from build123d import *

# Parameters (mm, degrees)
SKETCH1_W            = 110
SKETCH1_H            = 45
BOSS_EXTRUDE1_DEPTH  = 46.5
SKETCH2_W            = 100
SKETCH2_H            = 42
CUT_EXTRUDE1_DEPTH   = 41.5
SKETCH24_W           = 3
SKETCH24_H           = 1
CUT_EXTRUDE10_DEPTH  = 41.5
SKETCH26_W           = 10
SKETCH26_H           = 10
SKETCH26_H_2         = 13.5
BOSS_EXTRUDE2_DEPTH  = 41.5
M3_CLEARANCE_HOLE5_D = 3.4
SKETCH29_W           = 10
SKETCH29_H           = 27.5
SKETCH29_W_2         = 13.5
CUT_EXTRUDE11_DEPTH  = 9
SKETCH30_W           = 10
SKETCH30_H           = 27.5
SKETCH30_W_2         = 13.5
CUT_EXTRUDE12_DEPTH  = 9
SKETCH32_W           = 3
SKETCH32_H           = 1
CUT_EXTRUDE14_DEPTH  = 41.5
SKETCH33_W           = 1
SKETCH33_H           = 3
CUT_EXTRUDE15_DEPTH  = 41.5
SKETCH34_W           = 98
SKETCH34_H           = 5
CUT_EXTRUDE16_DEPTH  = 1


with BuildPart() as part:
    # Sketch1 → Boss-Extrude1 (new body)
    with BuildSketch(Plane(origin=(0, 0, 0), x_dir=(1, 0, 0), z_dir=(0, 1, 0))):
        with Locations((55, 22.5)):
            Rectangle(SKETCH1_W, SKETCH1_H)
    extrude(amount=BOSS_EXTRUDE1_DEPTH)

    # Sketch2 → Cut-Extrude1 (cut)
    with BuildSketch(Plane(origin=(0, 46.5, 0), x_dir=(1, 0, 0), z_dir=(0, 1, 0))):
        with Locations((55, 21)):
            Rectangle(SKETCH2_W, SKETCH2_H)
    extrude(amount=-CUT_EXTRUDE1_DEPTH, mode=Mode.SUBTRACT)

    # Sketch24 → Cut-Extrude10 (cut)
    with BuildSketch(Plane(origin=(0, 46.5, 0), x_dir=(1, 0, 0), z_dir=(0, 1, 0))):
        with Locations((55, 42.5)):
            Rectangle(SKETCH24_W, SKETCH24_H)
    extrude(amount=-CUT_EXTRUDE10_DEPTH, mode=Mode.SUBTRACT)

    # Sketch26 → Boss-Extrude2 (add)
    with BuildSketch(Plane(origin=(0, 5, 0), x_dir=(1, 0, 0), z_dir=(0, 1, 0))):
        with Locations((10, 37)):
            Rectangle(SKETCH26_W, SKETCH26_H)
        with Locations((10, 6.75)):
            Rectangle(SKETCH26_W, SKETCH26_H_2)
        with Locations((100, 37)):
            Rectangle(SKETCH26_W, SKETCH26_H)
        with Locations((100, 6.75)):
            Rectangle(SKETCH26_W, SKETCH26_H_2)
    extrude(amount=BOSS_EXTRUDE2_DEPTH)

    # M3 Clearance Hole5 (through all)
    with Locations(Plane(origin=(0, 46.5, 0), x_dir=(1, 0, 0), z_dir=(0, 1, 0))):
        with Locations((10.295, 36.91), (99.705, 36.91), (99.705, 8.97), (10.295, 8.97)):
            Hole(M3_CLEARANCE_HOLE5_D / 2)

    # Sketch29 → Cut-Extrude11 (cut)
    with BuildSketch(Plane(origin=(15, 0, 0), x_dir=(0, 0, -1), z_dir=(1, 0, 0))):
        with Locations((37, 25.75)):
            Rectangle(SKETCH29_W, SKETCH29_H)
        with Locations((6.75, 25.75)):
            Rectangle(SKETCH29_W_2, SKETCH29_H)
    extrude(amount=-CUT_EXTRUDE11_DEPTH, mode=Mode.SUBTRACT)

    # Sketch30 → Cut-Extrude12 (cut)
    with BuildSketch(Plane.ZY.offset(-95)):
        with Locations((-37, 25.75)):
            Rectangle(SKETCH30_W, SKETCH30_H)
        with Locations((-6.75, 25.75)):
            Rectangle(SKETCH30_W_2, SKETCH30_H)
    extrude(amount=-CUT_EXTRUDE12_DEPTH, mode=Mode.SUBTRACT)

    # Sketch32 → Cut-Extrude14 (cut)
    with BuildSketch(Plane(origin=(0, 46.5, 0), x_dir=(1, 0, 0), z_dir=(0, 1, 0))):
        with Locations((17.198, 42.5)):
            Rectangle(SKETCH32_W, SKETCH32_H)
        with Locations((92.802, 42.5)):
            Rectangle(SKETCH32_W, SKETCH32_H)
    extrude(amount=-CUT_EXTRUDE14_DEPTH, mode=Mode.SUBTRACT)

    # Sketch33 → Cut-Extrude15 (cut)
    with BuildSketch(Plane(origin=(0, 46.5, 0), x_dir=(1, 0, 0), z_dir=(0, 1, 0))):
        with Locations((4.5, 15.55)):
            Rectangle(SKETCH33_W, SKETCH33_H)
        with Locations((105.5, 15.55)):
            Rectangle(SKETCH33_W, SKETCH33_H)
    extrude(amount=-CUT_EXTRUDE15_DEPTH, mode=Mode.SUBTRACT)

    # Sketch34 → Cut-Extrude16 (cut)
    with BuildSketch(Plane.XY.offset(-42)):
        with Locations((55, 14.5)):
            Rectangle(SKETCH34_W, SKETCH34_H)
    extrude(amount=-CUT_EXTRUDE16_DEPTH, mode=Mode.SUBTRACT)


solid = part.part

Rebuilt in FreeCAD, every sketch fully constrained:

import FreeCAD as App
import Part
import Sketcher

doc = App.newDocument("Part")
params = doc.addObject("Spreadsheet::Sheet", "Params")
for row, (alias, value) in enumerate([
    ("sketch1_width", "110 mm"),
    ("sketch1_height", "45 mm"),
    ("pad1_length", "46.5 mm"),
    ("sketch2_width", "100 mm"),
    ("sketch2_height", "42 mm"),
    ("pocket1_length", "41.5 mm"),
    ("sketch3_width", "3 mm"),
    ("sketch3_height", "1 mm"),
    ("pocket2_length", "41.5 mm"),
    ("sketch4_width", "10 mm"),
    ("sketch4_height", "13.5 mm"),
    ("pad2_length", "41.5 mm"),
    ("sketch5_diameter", "3.4 mm"),
    ("hole_diameter", "3.4 mm"),
    ("sketch6_height", "10 mm"),
    ("sketch6_width", "27.5 mm"),
    ("sketch6_height2", "13.5 mm"),
    ("pocket3_length", "9 mm"),
    ("sketch7_height", "10 mm"),
    ("sketch7_width", "27.5 mm"),
    ("sketch7_height2", "13.5 mm"),
    ("pocket4_length", "9 mm"),
    ("sketch8_width", "3 mm"),
    ("sketch8_height", "1 mm"),
    ("pocket5_length", "41.5 mm"),
    ("sketch9_width", "1 mm"),
    ("sketch9_height", "3 mm"),
    ("pocket6_length", "41.5 mm"),
    ("sketch10_width", "98 mm"),
    ("sketch10_height", "5 mm"),
    ("pocket7_length", "1 mm"),
], start=1):
    params.set(f"A{row}", alias)
    params.set(f"B{row}", "=" + value)
    params.setAlias(f"B{row}", alias)

body = doc.addObject("PartDesign::Body", "Body")

# Sketch on XZ plane
sketch1 = body.newObject("Sketcher::SketchObject", "Sketch")
sketch1.AttachmentSupport = (doc.getObject("XZ_Plane"), [""])
sketch1.MapMode = "FlatFace"
sketch1.addGeometry([
    Part.LineSegment(App.Vector(0, -45, 0), App.Vector(0, 0, 0)),
    Part.LineSegment(App.Vector(0, 0, 0), App.Vector(110, 0, 0)),
    Part.LineSegment(App.Vector(110, 0, 0), App.Vector(110, -45, 0)),
    Part.LineSegment(App.Vector(110, -45, 0), App.Vector(0, -45, 0)),
], False)
sketch1.addConstraint([
    Sketcher.Constraint("Coincident", 0, 2, 1, 1),
    Sketcher.Constraint("Coincident", 1, 2, 2, 1),
    Sketcher.Constraint("Coincident", 2, 2, 3, 1),
    Sketcher.Constraint("Coincident", 3, 2, 0, 1),
    Sketcher.Constraint("Vertical", 0),
    Sketcher.Constraint("Horizontal", 1),
    Sketcher.Constraint("Vertical", 2),
    Sketcher.Constraint("Horizontal", 3),
    Sketcher.Constraint("Coincident", 0, 2, -1, 1),
    Sketcher.Constraint("DistanceX", 1, 1, 1, 2, 110.0),
    Sketcher.Constraint("DistanceY", 0, 1, 0, 2, 45.0),
])
sketch1.setExpression("Constraints[9]", "Params.sketch1_width")
sketch1.setExpression("Constraints[10]", "Params.sketch1_height")
pad1 = body.newObject("PartDesign::Pad", "Pad")
pad1.Profile = sketch1
pad1.setExpression("Length", "Params.pad1_length")
pad1.Reversed = True

# Sketch on XZ plane
sketch2 = body.newObject("Sketcher::SketchObject", "Sketch001")
sketch2.AttachmentSupport = (doc.getObject("XZ_Plane"), [""])
sketch2.MapMode = "FlatFace"
sketch2.AttachmentOffset = App.Placement(App.Vector(0, 0, -46.5), App.Rotation())
sketch2.addGeometry([
    Part.LineSegment(App.Vector(5, -42, 0), App.Vector(5, 0, 0)),
    Part.LineSegment(App.Vector(5, 0, 0), App.Vector(105, 0, 0)),
    Part.LineSegment(App.Vector(105, 0, 0), App.Vector(105, -42, 0)),
    Part.LineSegment(App.Vector(105, -42, 0), App.Vector(5, -42, 0)),
], False)
sketch2.addConstraint([
    Sketcher.Constraint("Coincident", 0, 2, 1, 1),
    Sketcher.Constraint("Coincident", 1, 2, 2, 1),
    Sketcher.Constraint("Coincident", 2, 2, 3, 1),
    Sketcher.Constraint("Coincident", 3, 2, 0, 1),
    Sketcher.Constraint("Vertical", 0),
    Sketcher.Constraint("Horizontal", 1),
    Sketcher.Constraint("Vertical", 2),
    Sketcher.Constraint("Horizontal", 3),
    Sketcher.Constraint("PointOnObject", 0, 2, -1),
    Sketcher.Constraint("DistanceX", 1, 1, 1, 2, 100.0),
    Sketcher.Constraint("DistanceY", 0, 1, 0, 2, 42.0),
    Sketcher.Constraint("DistanceX", -1, 1, 0, 2, 5.0),
])
sketch2.setExpression("Constraints[9]", "Params.sketch2_width")
sketch2.setExpression("Constraints[10]", "Params.sketch2_height")
pocket1 = body.newObject("PartDesign::Pocket", "Pocket")
pocket1.Profile = sketch2
pocket1.setExpression("Length", "Params.pocket1_length")
pocket1.Reversed = True

# Sketch on XZ plane
sketch3 = body.newObject("Sketcher::SketchObject", "Sketch002")
sketch3.AttachmentSupport = (doc.getObject("XZ_Plane"), [""])
sketch3.MapMode = "FlatFace"
sketch3.AttachmentOffset = App.Placement(App.Vector(0, 0, -46.5), App.Rotation())
sketch3.addGeometry([
    Part.LineSegment(App.Vector(53.5, -43, 0), App.Vector(53.5, -42, 0)),
    Part.LineSegment(App.Vector(53.5, -42, 0), App.Vector(56.5, -42, 0)),
    Part.LineSegment(App.Vector(56.5, -42, 0), App.Vector(56.5, -43, 0)),
    Part.LineSegment(App.Vector(56.5, -43, 0), App.Vector(53.5, -43, 0)),
], False)
sketch3.addConstraint([
    Sketcher.Constraint("Coincident", 0, 2, 1, 1),
    Sketcher.Constraint("Coincident", 1, 2, 2, 1),
    Sketcher.Constraint("Coincident", 2, 2, 3, 1),
    Sketcher.Constraint("Coincident", 3, 2, 0, 1),
    Sketcher.Constraint("Vertical", 0),
    Sketcher.Constraint("Horizontal", 1),
    Sketcher.Constraint("Vertical", 2),
    Sketcher.Constraint("Horizontal", 3),
    Sketcher.Constraint("DistanceX", 1, 1, 1, 2, 3.0),
    Sketcher.Constraint("DistanceY", 0, 1, 0, 2, 1.0),
    Sketcher.Constraint("DistanceY", 0, 2, -1, 1, 42.0),
    Sketcher.Constraint("DistanceX", -1, 1, 0, 2, 53.5),
])
sketch3.setExpression("Constraints[8]", "Params.sketch3_width")
sketch3.setExpression("Constraints[9]", "Params.sketch3_height")
pocket2 = body.newObject("PartDesign::Pocket", "Pocket001")
pocket2.Profile = sketch3
pocket2.setExpression("Length", "Params.pocket2_length")
pocket2.Reversed = True

# Sketch on XZ plane
sketch4 = body.newObject("Sketcher::SketchObject", "Sketch003")
sketch4.AttachmentSupport = (doc.getObject("XZ_Plane"), [""])
sketch4.MapMode = "FlatFace"
sketch4.AttachmentOffset = App.Placement(App.Vector(0, 0, -5), App.Rotation())
sketch4.addGeometry([
    Part.LineSegment(App.Vector(5, -42, 0), App.Vector(5, -32, 0)),  # 0
    Part.LineSegment(App.Vector(5, -32, 0), App.Vector(15, -32, 0)),  # 1
    Part.LineSegment(App.Vector(15, -32, 0), App.Vector(15, -42, 0)),  # 2
    Part.LineSegment(App.Vector(15, -42, 0), App.Vector(5, -42, 0)),  # 3
    Part.LineSegment(App.Vector(5, -14, 0), App.Vector(5, 0, 0)),  # 4
    Part.LineSegment(App.Vector(5, 0, 0), App.Vector(15, 0, 0)),  # 5
    Part.LineSegment(App.Vector(15, 0, 0), App.Vector(15, -14, 0)),  # 6
    Part.LineSegment(App.Vector(15, -14, 0), App.Vector(5, -14, 0)),  # 7
    Part.LineSegment(App.Vector(95, -42, 0), App.Vector(95, -32, 0)),  # 8
    Part.LineSegment(App.Vector(95, -32, 0), App.Vector(105, -32, 0)),  # 9
    Part.LineSegment(App.Vector(105, -32, 0), App.Vector(105, -42, 0)),  # 10
    Part.LineSegment(App.Vector(105, -42, 0), App.Vector(95, -42, 0)),  # 11
    Part.LineSegment(App.Vector(95, -14, 0), App.Vector(95, 0, 0)),  # 12
    Part.LineSegment(App.Vector(95, 0, 0), App.Vector(105, 0, 0)),  # 13
    Part.LineSegment(App.Vector(105, 0, 0), App.Vector(105, -14, 0)),  # 14
    Part.LineSegment(App.Vector(105, -14, 0), App.Vector(95, -14, 0)),  # 15
], False)
sketch4.addConstraint([
    Sketcher.Constraint("Coincident", 0, 2, 1, 1),
    Sketcher.Constraint("Coincident", 1, 2, 2, 1),
    Sketcher.Constraint("Coincident", 2, 2, 3, 1),
    Sketcher.Constraint("Coincident", 3, 2, 0, 1),
    Sketcher.Constraint("Coincident", 4, 2, 5, 1),
    Sketcher.Constraint("Coincident", 5, 2, 6, 1),
    Sketcher.Constraint("Coincident", 6, 2, 7, 1),
    Sketcher.Constraint("Coincident", 7, 2, 4, 1),
    Sketcher.Constraint("Coincident", 8, 2, 9, 1),
    Sketcher.Constraint("Coincident", 9, 2, 10, 1),
    Sketcher.Constraint("Coincident", 10, 2, 11, 1),
    Sketcher.Constraint("Coincident", 11, 2, 8, 1),
    Sketcher.Constraint("Coincident", 12, 2, 13, 1),
    Sketcher.Constraint("Coincident", 13, 2, 14, 1),
    Sketcher.Constraint("Coincident", 14, 2, 15, 1),
    Sketcher.Constraint("Coincident", 15, 2, 12, 1),
    Sketcher.Constraint("Vertical", 0),
    Sketcher.Constraint("Horizontal", 1),
    Sketcher.Constraint("Vertical", 2),
    Sketcher.Constraint("Horizontal", 3),
    Sketcher.Constraint("Vertical", 4),
    Sketcher.Constraint("Horizontal", 5),
    Sketcher.Constraint("Vertical", 6),
    Sketcher.Constraint("Horizontal", 7),
    Sketcher.Constraint("Vertical", 8),
    Sketcher.Constraint("Horizontal", 9),
    Sketcher.Constraint("Vertical", 10),
    Sketcher.Constraint("Horizontal", 11),
    Sketcher.Constraint("Vertical", 12),
    Sketcher.Constraint("Horizontal", 13),
    Sketcher.Constraint("Vertical", 14),
    Sketcher.Constraint("Horizontal", 15),
    Sketcher.Constraint("PointOnObject", 4, 2, -1),
    Sketcher.Constraint("PointOnObject", 12, 2, -1),
    Sketcher.Constraint("Horizontal", 1, 2, 8, 2),
    Sketcher.Constraint("Horizontal", 3, 2, 10, 2),
    Sketcher.Constraint("Horizontal", 7, 2, 14, 2),
    Sketcher.Constraint("Vertical", 3, 2, 4, 2),
    Sketcher.Constraint("Vertical", 2, 2, 5, 2),
    Sketcher.Constraint("Vertical", 11, 2, 12, 2),
    Sketcher.Constraint("Vertical", 10, 2, 13, 2),
    Sketcher.Constraint("Equal", 7, 9),
    Sketcher.Constraint("Equal", 15, 0),
    Sketcher.Constraint("DistanceX", 1, 1, 1, 2, 10.0),
    Sketcher.Constraint("DistanceY", 4, 1, 4, 2, 13.5),
    Sketcher.Constraint("DistanceX", -1, 1, 0, 2, 5.0),
    Sketcher.Constraint("DistanceY", 0, 2, -1, 1, 32.0),
    Sketcher.Constraint("DistanceX", -1, 1, 8, 2, 95.0),
])
sketch4.setExpression("Constraints[43]", "Params.sketch4_width")
sketch4.setExpression("Constraints[44]", "Params.sketch4_height")
pad2 = body.newObject("PartDesign::Pad", "Pad001")
pad2.Profile = sketch4
pad2.setExpression("Length", "Params.pad2_length")
pad2.Reversed = True

# Sketch on XZ plane
sketch5 = body.newObject("Sketcher::SketchObject", "Sketch004")
sketch5.AttachmentSupport = (doc.getObject("XZ_Plane"), [""])
sketch5.MapMode = "FlatFace"
sketch5.AttachmentOffset = App.Placement(App.Vector(0, 0, -46.5), App.Rotation())
sketch5.addGeometry([
    Part.Circle(App.Vector(10.3, -36.9, 0), App.Vector(0, 0, 1), 1.7),
    Part.Circle(App.Vector(99.7, -36.9, 0), App.Vector(0, 0, 1), 1.7),
    Part.Circle(App.Vector(99.7, -9, 0), App.Vector(0, 0, 1), 1.7),
    Part.Circle(App.Vector(10.3, -9, 0), App.Vector(0, 0, 1), 1.7),
], False)
sketch5.addConstraint([
    Sketcher.Constraint("Equal", 0, 1),
    Sketcher.Constraint("Equal", 1, 2),
    Sketcher.Constraint("Equal", 2, 3),
    Sketcher.Constraint("Horizontal", 0, 3, 1, 3),
    Sketcher.Constraint("Horizontal", 2, 3, 3, 3),
    Sketcher.Constraint("Vertical", 1, 3, 2, 3),
    Sketcher.Constraint("Vertical", 0, 3, 3, 3),
    Sketcher.Constraint("Diameter", 0, 3.4),
    Sketcher.Constraint("DistanceY", 0, 3, -1, 1, 36.91),
    Sketcher.Constraint("DistanceY", 2, 3, -1, 1, 8.97),
    Sketcher.Constraint("DistanceX", 0, 3, 1, 3, 89.41),
    Sketcher.Constraint("DistanceX", -1, 1, 0, 3, 10.295),
])
sketch5.setExpression("Constraints[7]", "Params.sketch5_diameter")
doc.recompute()
hole = body.newObject("PartDesign::Hole", "Hole")
hole.Profile = sketch5
hole.ThreadType = "None"
hole.setExpression("Diameter", "Params.hole_diameter")
hole.DepthType = "ThroughAll"
hole.Reversed = True

# Sketch on YZ plane
sketch6 = body.newObject("Sketcher::SketchObject", "Sketch005")
sketch6.AttachmentSupport = (doc.getObject("YZ_Plane"), [""])
sketch6.MapMode = "FlatFace"
sketch6.AttachmentOffset = App.Placement(App.Vector(0, 0, 15), App.Rotation())
sketch6.addGeometry([
    Part.LineSegment(App.Vector(40, -32, 0), App.Vector(12, -32, 0)),  # 0
    Part.LineSegment(App.Vector(12, -32, 0), App.Vector(12, -42, 0)),  # 1
    Part.LineSegment(App.Vector(12, -42, 0), App.Vector(40, -42, 0)),  # 2
    Part.LineSegment(App.Vector(40, -42, 0), App.Vector(40, -32, 0)),  # 3
    Part.LineSegment(App.Vector(40, 0, 0), App.Vector(12, 0, 0)),  # 4
    Part.LineSegment(App.Vector(12, 0, 0), App.Vector(12, -14, 0)),  # 5
    Part.LineSegment(App.Vector(12, -14, 0), App.Vector(40, -14, 0)),  # 6
    Part.LineSegment(App.Vector(40, -14, 0), App.Vector(40, 0, 0)),  # 7
], False)
sketch6.addConstraint([
    Sketcher.Constraint("Coincident", 0, 2, 1, 1),
    Sketcher.Constraint("Coincident", 1, 2, 2, 1),
    Sketcher.Constraint("Coincident", 2, 2, 3, 1),
    Sketcher.Constraint("Coincident", 3, 2, 0, 1),
    Sketcher.Constraint("Coincident", 4, 2, 5, 1),
    Sketcher.Constraint("Coincident", 5, 2, 6, 1),
    Sketcher.Constraint("Coincident", 6, 2, 7, 1),
    Sketcher.Constraint("Coincident", 7, 2, 4, 1),
    Sketcher.Constraint("Horizontal", 0),
    Sketcher.Constraint("Vertical", 1),
    Sketcher.Constraint("Horizontal", 2),
    Sketcher.Constraint("Vertical", 3),
    Sketcher.Constraint("Horizontal", 4),
    Sketcher.Constraint("Vertical", 5),
    Sketcher.Constraint("Horizontal", 6),
    Sketcher.Constraint("Vertical", 7),
    Sketcher.Constraint("PointOnObject", 4, 2, -1),
    Sketcher.Constraint("Vertical", 1, 2, 4, 2),
    Sketcher.Constraint("Vertical", 3, 2, 6, 2),
    Sketcher.Constraint("DistanceY", 1, 2, 1, 1, 10.0),
    Sketcher.Constraint("DistanceX", 0, 2, 0, 1, 27.5),
    Sketcher.Constraint("DistanceY", 5, 2, 5, 1, 13.5),
    Sketcher.Constraint("DistanceX", -1, 1, 0, 2, 12.0),
    Sketcher.Constraint("DistanceY", 0, 2, -1, 1, 32.0),
])
sketch6.setExpression("Constraints[19]", "Params.sketch6_height")
sketch6.setExpression("Constraints[20]", "Params.sketch6_width")
sketch6.setExpression("Constraints[21]", "Params.sketch6_height2")
pocket3 = body.newObject("PartDesign::Pocket", "Pocket002")
pocket3.Profile = sketch6
pocket3.setExpression("Length", "Params.pocket3_length")

# Sketch on YZ plane
sketch7 = body.newObject("Sketcher::SketchObject", "Sketch006")
sketch7.AttachmentSupport = (doc.getObject("YZ_Plane"), [""])
sketch7.MapMode = "FlatFace"
sketch7.AttachmentOffset = App.Placement(App.Vector(0, 0, 95), App.Rotation())
sketch7.addGeometry([
    Part.LineSegment(App.Vector(40, -42, 0), App.Vector(12, -42, 0)),  # 0
    Part.LineSegment(App.Vector(12, -42, 0), App.Vector(12, -32, 0)),  # 1
    Part.LineSegment(App.Vector(12, -32, 0), App.Vector(40, -32, 0)),  # 2
    Part.LineSegment(App.Vector(40, -32, 0), App.Vector(40, -42, 0)),  # 3
    Part.LineSegment(App.Vector(40, -14, 0), App.Vector(12, -14, 0)),  # 4
    Part.LineSegment(App.Vector(12, -14, 0), App.Vector(12, 0, 0)),  # 5
    Part.LineSegment(App.Vector(12, 0, 0), App.Vector(40, 0, 0)),  # 6
    Part.LineSegment(App.Vector(40, 0, 0), App.Vector(40, -14, 0)),  # 7
], False)
sketch7.addConstraint([
    Sketcher.Constraint("Coincident", 0, 2, 1, 1),
    Sketcher.Constraint("Coincident", 1, 2, 2, 1),
    Sketcher.Constraint("Coincident", 2, 2, 3, 1),
    Sketcher.Constraint("Coincident", 3, 2, 0, 1),
    Sketcher.Constraint("Coincident", 4, 2, 5, 1),
    Sketcher.Constraint("Coincident", 5, 2, 6, 1),
    Sketcher.Constraint("Coincident", 6, 2, 7, 1),
    Sketcher.Constraint("Coincident", 7, 2, 4, 1),
    Sketcher.Constraint("Horizontal", 0),
    Sketcher.Constraint("Vertical", 1),
    Sketcher.Constraint("Horizontal", 2),
    Sketcher.Constraint("Vertical", 3),
    Sketcher.Constraint("Horizontal", 4),
    Sketcher.Constraint("Vertical", 5),
    Sketcher.Constraint("Horizontal", 6),
    Sketcher.Constraint("Vertical", 7),
    Sketcher.Constraint("PointOnObject", 5, 2, -1),
    Sketcher.Constraint("Vertical", 1, 2, 4, 2),
    Sketcher.Constraint("Vertical", 3, 2, 6, 2),
    Sketcher.Constraint("DistanceY", 1, 1, 1, 2, 10.0),
    Sketcher.Constraint("DistanceX", 0, 2, 0, 1, 27.5),
    Sketcher.Constraint("DistanceY", 5, 1, 5, 2, 13.5),
    Sketcher.Constraint("DistanceX", -1, 1, 0, 2, 12.0),
    Sketcher.Constraint("DistanceY", 0, 2, -1, 1, 42.0),
])
sketch7.setExpression("Constraints[19]", "Params.sketch7_height")
sketch7.setExpression("Constraints[20]", "Params.sketch7_width")
sketch7.setExpression("Constraints[21]", "Params.sketch7_height2")
pocket4 = body.newObject("PartDesign::Pocket", "Pocket003")
pocket4.Profile = sketch7
pocket4.setExpression("Length", "Params.pocket4_length")
pocket4.Reversed = True

# Sketch on XZ plane
sketch8 = body.newObject("Sketcher::SketchObject", "Sketch007")
sketch8.AttachmentSupport = (doc.getObject("XZ_Plane"), [""])
sketch8.MapMode = "FlatFace"
sketch8.AttachmentOffset = App.Placement(App.Vector(0, 0, -46.5), App.Rotation())
sketch8.addGeometry([
    Part.LineSegment(App.Vector(15.7, -43, 0), App.Vector(15.7, -42, 0)),  # 0
    Part.LineSegment(App.Vector(15.7, -42, 0), App.Vector(18.7, -42, 0)),  # 1
    Part.LineSegment(App.Vector(18.7, -42, 0), App.Vector(18.7, -43, 0)),  # 2
    Part.LineSegment(App.Vector(18.7, -43, 0), App.Vector(15.7, -43, 0)),  # 3
    Part.LineSegment(App.Vector(91.3, -43, 0), App.Vector(91.3, -42, 0)),  # 4
    Part.LineSegment(App.Vector(91.3, -42, 0), App.Vector(94.3, -42, 0)),  # 5
    Part.LineSegment(App.Vector(94.3, -42, 0), App.Vector(94.3, -43, 0)),  # 6
    Part.LineSegment(App.Vector(94.3, -43, 0), App.Vector(91.3, -43, 0)),  # 7
], False)
sketch8.addConstraint([
    Sketcher.Constraint("Coincident", 0, 2, 1, 1),
    Sketcher.Constraint("Coincident", 1, 2, 2, 1),
    Sketcher.Constraint("Coincident", 2, 2, 3, 1),
    Sketcher.Constraint("Coincident", 3, 2, 0, 1),
    Sketcher.Constraint("Coincident", 4, 2, 5, 1),
    Sketcher.Constraint("Coincident", 5, 2, 6, 1),
    Sketcher.Constraint("Coincident", 6, 2, 7, 1),
    Sketcher.Constraint("Coincident", 7, 2, 4, 1),
    Sketcher.Constraint("Vertical", 0),
    Sketcher.Constraint("Horizontal", 1),
    Sketcher.Constraint("Vertical", 2),
    Sketcher.Constraint("Horizontal", 3),
    Sketcher.Constraint("Vertical", 4),
    Sketcher.Constraint("Horizontal", 5),
    Sketcher.Constraint("Vertical", 6),
    Sketcher.Constraint("Horizontal", 7),
    Sketcher.Constraint("Horizontal", 1, 2, 4, 2),
    Sketcher.Constraint("Horizontal", 3, 2, 6, 2),
    Sketcher.Constraint("Equal", 3, 5),
    Sketcher.Constraint("DistanceX", 1, 1, 1, 2, 3.0),
    Sketcher.Constraint("DistanceY", 0, 1, 0, 2, 1.0),
    Sketcher.Constraint("DistanceY", 0, 2, -1, 1, 42.0),
    Sketcher.Constraint("DistanceX", -1, 1, 0, 2, 15.698),
    Sketcher.Constraint("DistanceX", -1, 1, 4, 2, 91.302),
])
sketch8.setExpression("Constraints[19]", "Params.sketch8_width")
sketch8.setExpression("Constraints[20]", "Params.sketch8_height")
pocket5 = body.newObject("PartDesign::Pocket", "Pocket004")
pocket5.Profile = sketch8
pocket5.setExpression("Length", "Params.pocket5_length")
pocket5.Reversed = True

# Sketch on XZ plane
sketch9 = body.newObject("Sketcher::SketchObject", "Sketch008")
sketch9.AttachmentSupport = (doc.getObject("XZ_Plane"), [""])
sketch9.MapMode = "FlatFace"
sketch9.AttachmentOffset = App.Placement(App.Vector(0, 0, -46.5), App.Rotation())
sketch9.addGeometry([
    Part.LineSegment(App.Vector(4, -17.1, 0), App.Vector(4, -14.1, 0)),  # 0
    Part.LineSegment(App.Vector(4, -14.1, 0), App.Vector(5, -14.1, 0)),  # 1
    Part.LineSegment(App.Vector(5, -14.1, 0), App.Vector(5, -17.1, 0)),  # 2
    Part.LineSegment(App.Vector(5, -17.1, 0), App.Vector(4, -17.1, 0)),  # 3
    Part.LineSegment(App.Vector(105, -17.1, 0), App.Vector(105, -14.1, 0)),  # 4
    Part.LineSegment(App.Vector(105, -14.1, 0), App.Vector(106, -14.1, 0)),  # 5
    Part.LineSegment(App.Vector(106, -14.1, 0), App.Vector(106, -17.1, 0)),  # 6
    Part.LineSegment(App.Vector(106, -17.1, 0), App.Vector(105, -17.1, 0)),  # 7
], False)
sketch9.addConstraint([
    Sketcher.Constraint("Coincident", 0, 2, 1, 1),
    Sketcher.Constraint("Coincident", 1, 2, 2, 1),
    Sketcher.Constraint("Coincident", 2, 2, 3, 1),
    Sketcher.Constraint("Coincident", 3, 2, 0, 1),
    Sketcher.Constraint("Coincident", 4, 2, 5, 1),
    Sketcher.Constraint("Coincident", 5, 2, 6, 1),
    Sketcher.Constraint("Coincident", 6, 2, 7, 1),
    Sketcher.Constraint("Coincident", 7, 2, 4, 1),
    Sketcher.Constraint("Vertical", 0),
    Sketcher.Constraint("Horizontal", 1),
    Sketcher.Constraint("Vertical", 2),
    Sketcher.Constraint("Horizontal", 3),
    Sketcher.Constraint("Vertical", 4),
    Sketcher.Constraint("Horizontal", 5),
    Sketcher.Constraint("Vertical", 6),
    Sketcher.Constraint("Horizontal", 7),
    Sketcher.Constraint("Horizontal", 1, 2, 4, 2),
    Sketcher.Constraint("Horizontal", 3, 2, 6, 2),
    Sketcher.Constraint("Equal", 3, 5),
    Sketcher.Constraint("DistanceX", 1, 1, 1, 2, 1.0),
    Sketcher.Constraint("DistanceY", 0, 1, 0, 2, 3.0),
    Sketcher.Constraint("DistanceX", -1, 1, 0, 2, 4.0),
    Sketcher.Constraint("DistanceX", -1, 1, 4, 2, 105.0),
    Sketcher.Constraint("DistanceY", 0, 2, -1, 1, 14.05),
])
sketch9.setExpression("Constraints[19]", "Params.sketch9_width")
sketch9.setExpression("Constraints[20]", "Params.sketch9_height")
pocket6 = body.newObject("PartDesign::Pocket", "Pocket005")
pocket6.Profile = sketch9
pocket6.setExpression("Length", "Params.pocket6_length")
pocket6.Reversed = True

# Sketch on XY plane
sketch10 = body.newObject("Sketcher::SketchObject", "Sketch009")
sketch10.AttachmentSupport = (doc.getObject("XY_Plane"), [""])
sketch10.MapMode = "FlatFace"
sketch10.AttachmentOffset = App.Placement(App.Vector(0, 0, -42), App.Rotation())
sketch10.addGeometry([
    Part.LineSegment(App.Vector(6, 17, 0), App.Vector(6, 12, 0)),
    Part.LineSegment(App.Vector(6, 12, 0), App.Vector(104, 12, 0)),
    Part.LineSegment(App.Vector(104, 12, 0), App.Vector(104, 17, 0)),
    Part.LineSegment(App.Vector(104, 17, 0), App.Vector(6, 17, 0)),
], False)
sketch10.addConstraint([
    Sketcher.Constraint("Coincident", 0, 2, 1, 1),
    Sketcher.Constraint("Coincident", 1, 2, 2, 1),
    Sketcher.Constraint("Coincident", 2, 2, 3, 1),
    Sketcher.Constraint("Coincident", 3, 2, 0, 1),
    Sketcher.Constraint("Vertical", 0),
    Sketcher.Constraint("Horizontal", 1),
    Sketcher.Constraint("Vertical", 2),
    Sketcher.Constraint("Horizontal", 3),
    Sketcher.Constraint("DistanceX", 1, 1, 1, 2, 98.0),
    Sketcher.Constraint("DistanceY", 0, 2, 0, 1, 5.0),
    Sketcher.Constraint("DistanceX", -1, 1, 0, 2, 6.0),
    Sketcher.Constraint("DistanceY", -1, 1, 0, 2, 12.0),
])
sketch10.setExpression("Constraints[8]", "Params.sketch10_width")
sketch10.setExpression("Constraints[9]", "Params.sketch10_height")
pocket7 = body.newObject("PartDesign::Pocket", "Pocket006")
pocket7.Profile = sketch10
pocket7.setExpression("Length", "Params.pocket7_length")

doc.recompute()
